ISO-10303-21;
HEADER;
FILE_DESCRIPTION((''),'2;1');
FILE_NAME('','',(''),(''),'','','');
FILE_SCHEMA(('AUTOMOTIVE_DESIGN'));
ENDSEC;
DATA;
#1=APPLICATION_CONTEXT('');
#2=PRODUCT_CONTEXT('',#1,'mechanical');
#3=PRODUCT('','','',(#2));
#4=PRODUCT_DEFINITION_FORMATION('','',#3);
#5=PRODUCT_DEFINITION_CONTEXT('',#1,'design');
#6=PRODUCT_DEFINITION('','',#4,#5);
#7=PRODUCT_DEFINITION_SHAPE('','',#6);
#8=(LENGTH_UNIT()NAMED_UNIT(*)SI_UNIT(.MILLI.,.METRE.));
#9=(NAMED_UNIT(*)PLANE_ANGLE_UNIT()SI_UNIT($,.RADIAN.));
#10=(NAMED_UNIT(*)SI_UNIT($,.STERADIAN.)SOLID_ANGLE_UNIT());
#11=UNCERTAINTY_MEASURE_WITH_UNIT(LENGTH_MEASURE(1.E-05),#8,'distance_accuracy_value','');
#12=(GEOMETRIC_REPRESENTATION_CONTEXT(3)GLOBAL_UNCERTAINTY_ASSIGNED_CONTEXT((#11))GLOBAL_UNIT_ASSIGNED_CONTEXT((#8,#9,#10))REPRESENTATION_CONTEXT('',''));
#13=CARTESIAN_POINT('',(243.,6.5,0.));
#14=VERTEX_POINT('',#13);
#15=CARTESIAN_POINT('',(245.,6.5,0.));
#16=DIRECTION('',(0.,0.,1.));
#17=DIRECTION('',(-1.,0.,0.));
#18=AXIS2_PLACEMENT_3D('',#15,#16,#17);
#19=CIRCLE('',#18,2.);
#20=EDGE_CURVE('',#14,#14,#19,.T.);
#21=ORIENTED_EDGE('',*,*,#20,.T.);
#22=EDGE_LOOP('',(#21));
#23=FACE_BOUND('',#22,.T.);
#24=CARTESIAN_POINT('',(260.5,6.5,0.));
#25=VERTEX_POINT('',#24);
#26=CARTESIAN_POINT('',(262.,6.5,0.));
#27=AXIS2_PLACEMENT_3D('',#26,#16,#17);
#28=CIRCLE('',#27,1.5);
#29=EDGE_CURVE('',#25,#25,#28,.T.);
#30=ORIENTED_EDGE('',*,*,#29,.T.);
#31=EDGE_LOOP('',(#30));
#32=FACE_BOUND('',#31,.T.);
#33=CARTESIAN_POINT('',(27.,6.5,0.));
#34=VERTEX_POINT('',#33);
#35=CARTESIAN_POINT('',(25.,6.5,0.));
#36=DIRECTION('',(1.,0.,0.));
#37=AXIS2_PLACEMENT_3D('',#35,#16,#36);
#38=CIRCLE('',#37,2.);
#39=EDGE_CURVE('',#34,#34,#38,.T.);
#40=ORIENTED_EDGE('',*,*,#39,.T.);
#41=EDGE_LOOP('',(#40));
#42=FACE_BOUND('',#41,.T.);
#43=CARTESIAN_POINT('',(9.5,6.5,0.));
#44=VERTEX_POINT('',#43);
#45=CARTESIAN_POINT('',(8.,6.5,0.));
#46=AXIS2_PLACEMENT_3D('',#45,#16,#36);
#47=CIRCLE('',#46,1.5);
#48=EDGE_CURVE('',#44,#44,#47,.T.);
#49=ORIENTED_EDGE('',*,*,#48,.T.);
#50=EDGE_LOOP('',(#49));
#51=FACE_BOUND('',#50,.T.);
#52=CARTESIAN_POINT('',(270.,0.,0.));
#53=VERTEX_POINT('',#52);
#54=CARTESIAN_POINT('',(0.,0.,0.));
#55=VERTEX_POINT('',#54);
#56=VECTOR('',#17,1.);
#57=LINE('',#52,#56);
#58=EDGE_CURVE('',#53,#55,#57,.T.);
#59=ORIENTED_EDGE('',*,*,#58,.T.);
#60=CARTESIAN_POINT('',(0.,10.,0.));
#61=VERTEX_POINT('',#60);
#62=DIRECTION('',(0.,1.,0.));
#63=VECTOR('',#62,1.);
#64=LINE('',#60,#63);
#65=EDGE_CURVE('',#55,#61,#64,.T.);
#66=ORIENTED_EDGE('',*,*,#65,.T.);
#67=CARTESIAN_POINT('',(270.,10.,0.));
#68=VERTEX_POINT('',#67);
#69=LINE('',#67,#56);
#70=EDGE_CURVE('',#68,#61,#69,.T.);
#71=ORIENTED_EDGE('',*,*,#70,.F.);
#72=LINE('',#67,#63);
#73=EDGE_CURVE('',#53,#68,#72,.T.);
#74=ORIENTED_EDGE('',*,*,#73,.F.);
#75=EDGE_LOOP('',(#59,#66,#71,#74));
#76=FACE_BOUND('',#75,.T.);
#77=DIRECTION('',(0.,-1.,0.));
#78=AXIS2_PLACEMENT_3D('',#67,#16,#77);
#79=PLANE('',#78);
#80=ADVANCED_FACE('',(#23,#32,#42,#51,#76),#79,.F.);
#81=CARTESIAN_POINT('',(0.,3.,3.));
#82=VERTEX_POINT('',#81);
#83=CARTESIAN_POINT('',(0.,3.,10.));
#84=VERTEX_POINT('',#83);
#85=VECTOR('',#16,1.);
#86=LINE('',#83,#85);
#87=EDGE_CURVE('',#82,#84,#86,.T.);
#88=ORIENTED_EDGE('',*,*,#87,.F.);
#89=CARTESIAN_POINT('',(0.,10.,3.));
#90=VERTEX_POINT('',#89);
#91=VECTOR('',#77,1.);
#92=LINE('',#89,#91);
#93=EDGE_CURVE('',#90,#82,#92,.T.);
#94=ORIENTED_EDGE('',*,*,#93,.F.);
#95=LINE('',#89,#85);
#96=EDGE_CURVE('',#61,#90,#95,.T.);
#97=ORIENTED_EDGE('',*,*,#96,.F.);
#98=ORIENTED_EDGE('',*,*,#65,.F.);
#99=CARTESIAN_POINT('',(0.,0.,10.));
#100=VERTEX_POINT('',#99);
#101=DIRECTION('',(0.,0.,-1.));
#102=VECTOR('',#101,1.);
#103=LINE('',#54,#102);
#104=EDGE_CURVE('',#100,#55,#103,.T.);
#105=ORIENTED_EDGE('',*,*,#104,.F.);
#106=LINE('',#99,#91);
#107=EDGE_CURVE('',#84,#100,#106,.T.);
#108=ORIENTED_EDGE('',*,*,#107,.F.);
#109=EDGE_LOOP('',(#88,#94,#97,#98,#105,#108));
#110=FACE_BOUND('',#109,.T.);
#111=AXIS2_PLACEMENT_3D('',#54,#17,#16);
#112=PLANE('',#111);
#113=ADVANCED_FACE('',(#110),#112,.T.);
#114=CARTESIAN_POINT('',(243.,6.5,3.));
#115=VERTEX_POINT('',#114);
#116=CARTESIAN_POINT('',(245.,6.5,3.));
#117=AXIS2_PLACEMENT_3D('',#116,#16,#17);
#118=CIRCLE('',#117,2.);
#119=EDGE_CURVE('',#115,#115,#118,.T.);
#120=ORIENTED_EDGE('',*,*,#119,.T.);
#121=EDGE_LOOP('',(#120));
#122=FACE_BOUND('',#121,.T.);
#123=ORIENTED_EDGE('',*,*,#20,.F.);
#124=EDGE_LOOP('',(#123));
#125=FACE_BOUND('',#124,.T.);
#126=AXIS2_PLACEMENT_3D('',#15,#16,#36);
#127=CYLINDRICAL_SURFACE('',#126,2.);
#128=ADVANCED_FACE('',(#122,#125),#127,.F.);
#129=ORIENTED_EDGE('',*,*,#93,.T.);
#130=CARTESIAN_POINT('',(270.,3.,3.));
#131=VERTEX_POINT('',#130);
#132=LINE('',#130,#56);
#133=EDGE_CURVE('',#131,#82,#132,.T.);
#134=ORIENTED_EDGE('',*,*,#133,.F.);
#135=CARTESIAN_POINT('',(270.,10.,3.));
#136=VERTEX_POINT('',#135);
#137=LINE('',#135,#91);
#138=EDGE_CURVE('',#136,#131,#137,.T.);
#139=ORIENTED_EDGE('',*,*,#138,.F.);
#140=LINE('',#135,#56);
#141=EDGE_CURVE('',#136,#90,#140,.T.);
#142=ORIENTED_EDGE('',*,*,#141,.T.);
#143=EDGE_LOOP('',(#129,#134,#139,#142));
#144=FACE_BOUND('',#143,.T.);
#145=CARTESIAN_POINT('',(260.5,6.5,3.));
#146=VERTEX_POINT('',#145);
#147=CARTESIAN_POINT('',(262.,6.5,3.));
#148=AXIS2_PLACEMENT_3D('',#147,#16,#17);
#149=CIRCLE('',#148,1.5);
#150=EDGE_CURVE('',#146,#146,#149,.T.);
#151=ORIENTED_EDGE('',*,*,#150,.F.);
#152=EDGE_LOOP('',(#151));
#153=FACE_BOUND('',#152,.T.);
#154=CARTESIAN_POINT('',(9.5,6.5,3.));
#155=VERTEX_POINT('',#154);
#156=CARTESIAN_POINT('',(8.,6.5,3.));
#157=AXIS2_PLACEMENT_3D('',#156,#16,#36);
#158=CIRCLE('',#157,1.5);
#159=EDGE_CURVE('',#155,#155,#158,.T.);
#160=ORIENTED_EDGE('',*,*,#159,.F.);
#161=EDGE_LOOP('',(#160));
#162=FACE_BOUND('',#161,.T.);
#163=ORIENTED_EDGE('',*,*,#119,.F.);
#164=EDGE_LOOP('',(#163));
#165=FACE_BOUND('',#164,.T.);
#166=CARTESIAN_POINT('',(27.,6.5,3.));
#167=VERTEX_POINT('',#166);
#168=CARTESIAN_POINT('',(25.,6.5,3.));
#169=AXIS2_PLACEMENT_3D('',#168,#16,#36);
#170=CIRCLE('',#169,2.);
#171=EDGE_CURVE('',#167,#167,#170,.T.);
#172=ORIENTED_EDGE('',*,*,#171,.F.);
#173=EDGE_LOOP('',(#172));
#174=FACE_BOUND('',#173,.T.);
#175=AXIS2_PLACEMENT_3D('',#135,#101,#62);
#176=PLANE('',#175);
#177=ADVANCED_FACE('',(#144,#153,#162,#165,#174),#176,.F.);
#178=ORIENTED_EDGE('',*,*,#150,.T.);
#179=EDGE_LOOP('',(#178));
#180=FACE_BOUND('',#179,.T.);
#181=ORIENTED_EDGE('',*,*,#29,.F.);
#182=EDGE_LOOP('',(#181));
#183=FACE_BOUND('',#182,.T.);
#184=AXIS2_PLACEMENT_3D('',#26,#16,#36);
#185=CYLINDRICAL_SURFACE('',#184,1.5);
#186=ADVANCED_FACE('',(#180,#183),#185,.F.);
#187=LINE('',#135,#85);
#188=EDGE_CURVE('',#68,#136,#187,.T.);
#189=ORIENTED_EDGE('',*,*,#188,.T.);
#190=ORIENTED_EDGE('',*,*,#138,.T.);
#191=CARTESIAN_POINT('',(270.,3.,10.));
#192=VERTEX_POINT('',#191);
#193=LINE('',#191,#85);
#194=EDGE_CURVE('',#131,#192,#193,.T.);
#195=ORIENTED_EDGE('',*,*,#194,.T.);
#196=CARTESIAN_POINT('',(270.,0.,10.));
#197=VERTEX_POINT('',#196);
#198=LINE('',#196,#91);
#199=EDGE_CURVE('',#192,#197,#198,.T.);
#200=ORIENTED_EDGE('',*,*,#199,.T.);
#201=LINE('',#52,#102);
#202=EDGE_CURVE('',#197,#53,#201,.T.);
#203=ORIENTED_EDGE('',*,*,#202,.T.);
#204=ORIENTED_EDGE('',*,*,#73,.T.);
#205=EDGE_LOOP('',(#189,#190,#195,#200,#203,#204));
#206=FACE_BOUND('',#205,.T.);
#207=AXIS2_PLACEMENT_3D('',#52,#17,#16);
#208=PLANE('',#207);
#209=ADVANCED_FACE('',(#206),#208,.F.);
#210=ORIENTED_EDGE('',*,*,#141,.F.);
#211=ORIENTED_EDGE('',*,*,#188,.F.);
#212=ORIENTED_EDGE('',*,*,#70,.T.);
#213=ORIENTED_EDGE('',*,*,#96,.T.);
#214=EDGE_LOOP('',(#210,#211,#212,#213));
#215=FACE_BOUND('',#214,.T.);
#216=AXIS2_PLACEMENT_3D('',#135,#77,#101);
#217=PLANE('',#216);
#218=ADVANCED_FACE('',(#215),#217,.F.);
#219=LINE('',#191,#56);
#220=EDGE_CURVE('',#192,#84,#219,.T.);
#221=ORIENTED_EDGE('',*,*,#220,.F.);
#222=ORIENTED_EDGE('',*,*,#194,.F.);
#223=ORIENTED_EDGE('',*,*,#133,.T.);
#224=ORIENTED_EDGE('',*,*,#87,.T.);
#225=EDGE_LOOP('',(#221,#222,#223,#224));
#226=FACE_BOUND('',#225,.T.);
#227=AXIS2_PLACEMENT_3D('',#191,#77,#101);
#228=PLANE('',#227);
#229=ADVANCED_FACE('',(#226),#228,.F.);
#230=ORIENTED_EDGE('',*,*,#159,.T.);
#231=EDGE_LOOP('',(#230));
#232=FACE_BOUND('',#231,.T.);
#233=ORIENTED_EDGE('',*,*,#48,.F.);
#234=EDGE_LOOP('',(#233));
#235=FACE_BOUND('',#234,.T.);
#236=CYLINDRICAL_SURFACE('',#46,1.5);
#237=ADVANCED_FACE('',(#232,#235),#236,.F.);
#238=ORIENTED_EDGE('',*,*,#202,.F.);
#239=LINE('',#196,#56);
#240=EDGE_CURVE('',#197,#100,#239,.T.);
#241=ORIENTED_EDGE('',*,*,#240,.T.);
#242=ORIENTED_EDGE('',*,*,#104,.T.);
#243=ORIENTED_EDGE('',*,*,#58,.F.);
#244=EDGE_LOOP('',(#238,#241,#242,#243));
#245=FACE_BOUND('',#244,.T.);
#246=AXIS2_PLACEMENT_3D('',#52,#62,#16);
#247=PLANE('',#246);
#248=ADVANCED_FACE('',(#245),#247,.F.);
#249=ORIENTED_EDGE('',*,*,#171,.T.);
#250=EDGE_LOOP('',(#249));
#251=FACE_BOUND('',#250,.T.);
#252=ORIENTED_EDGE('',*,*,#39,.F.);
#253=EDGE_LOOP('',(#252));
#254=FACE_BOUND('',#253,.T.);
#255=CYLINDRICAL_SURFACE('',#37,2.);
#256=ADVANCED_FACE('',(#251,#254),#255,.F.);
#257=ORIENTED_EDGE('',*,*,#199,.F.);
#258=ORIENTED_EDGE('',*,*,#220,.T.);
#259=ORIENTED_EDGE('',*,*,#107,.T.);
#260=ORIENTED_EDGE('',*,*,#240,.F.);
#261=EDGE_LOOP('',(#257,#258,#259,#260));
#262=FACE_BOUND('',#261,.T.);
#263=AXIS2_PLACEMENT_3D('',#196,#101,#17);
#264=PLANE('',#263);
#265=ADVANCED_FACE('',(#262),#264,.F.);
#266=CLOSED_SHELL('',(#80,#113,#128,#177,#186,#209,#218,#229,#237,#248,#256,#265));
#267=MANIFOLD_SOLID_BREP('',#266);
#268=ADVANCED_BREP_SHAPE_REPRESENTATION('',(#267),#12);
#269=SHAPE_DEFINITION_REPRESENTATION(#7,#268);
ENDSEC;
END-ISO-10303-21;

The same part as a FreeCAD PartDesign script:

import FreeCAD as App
import Part
import Sketcher

V = App.Vector

doc = App.newDocument("Part")
body = doc.addObject("PartDesign::Body", "Body")

# Sketch on YZ plane
sketch1 = body.newObject("Sketcher::SketchObject", "Sketch")
sketch1.AttachmentSupport = (doc.getObject("YZ_Plane"), [""])
sketch1.MapMode = "FlatFace"
sketch1.addGeometry(Part.LineSegment(V(0, 10, 0), V(0, 0, 0)), False)
sketch1.addGeometry(Part.LineSegment(V(0, 0, 0), V(10, 0, 0)), False)
sketch1.addGeometry(Part.LineSegment(V(10, 0, 0), V(10, 3, 0)), False)
sketch1.addGeometry(Part.LineSegment(V(10, 3, 0), V(3, 3, 0)), False)
sketch1.addGeometry(Part.LineSegment(V(3, 3, 0), V(3, 10, 0)), False)
sketch1.addGeometry(Part.LineSegment(V(3, 10, 0), V(0, 10, 0)), False)
sketch1.addConstraint(Sketcher.Constraint("Coincident", 0, 2, 1, 1))
sketch1.addConstraint(Sketcher.Constraint("Coincident", 1, 2, 2, 1))
sketch1.addConstraint(Sketcher.Constraint("Coincident", 2, 2, 3, 1))
sketch1.addConstraint(Sketcher.Constraint("Coincident", 3, 2, 4, 1))
sketch1.addConstraint(Sketcher.Constraint("Coincident", 4, 2, 5, 1))
sketch1.addConstraint(Sketcher.Constraint("Coincident", 5, 2, 0, 1))
sketch1.addConstraint(Sketcher.Constraint("Vertical", 0))
sketch1.addConstraint(Sketcher.Constraint("Horizontal", 1))
sketch1.addConstraint(Sketcher.Constraint("Vertical", 2))
sketch1.addConstraint(Sketcher.Constraint("Horizontal", 3))
sketch1.addConstraint(Sketcher.Constraint("Vertical", 4))
sketch1.addConstraint(Sketcher.Constraint("Horizontal", 5))
sketch1.addConstraint(Sketcher.Constraint("Coincident", 0, 2, -1, 1))
sketch1.addConstraint(Sketcher.Constraint("Equal", 1, 0))
sketch1.addConstraint(Sketcher.Constraint("Equal", 5, 2))
sketch1.addConstraint(Sketcher.Constraint("DistanceX", 1, 1, 1, 2, 10.0))
sketch1.addConstraint(Sketcher.Constraint("DistanceX", 3, 2, 3, 1, 7.0))
pad1 = body.newObject("PartDesign::Pad", "Pad")
pad1.Profile = sketch1
pad1.Length = 270

# Sketch on XY plane
sketch2 = body.newObject("Sketcher::SketchObject", "Sketch001")
sketch2.AttachmentSupport = (doc.getObject("XY_Plane"), [""])
sketch2.MapMode = "FlatFace"
sketch2.AttachmentOffset = App.Placement(V(0, 0, 3), App.Rotation())
sketch2.addGeometry(Part.Circle(V(25, 6.5, 0), V(0, 0, 1), 2), False)
sketch2.addGeometry(Part.Circle(V(245, 6.5, 0), V(0, 0, 1), 2), False)
sketch2.addConstraint(Sketcher.Constraint("Equal", 0, 1))
sketch2.addConstraint(Sketcher.Constraint("Horizontal", 0, 3, 1, 3))
sketch2.addConstraint(Sketcher.Constraint("Diameter", 0, 4.0))
sketch2.addConstraint(Sketcher.Constraint("DistanceX", -1, 1, 0, 3, 25.0))
sketch2.addConstraint(Sketcher.Constraint("DistanceX", -1, 1, 1, 3, 245.0))
sketch2.addConstraint(Sketcher.Constraint("DistanceY", -1, 1, 0, 3, 6.5))
pocket1 = body.newObject("PartDesign::Pocket", "Pocket")
pocket1.Profile = sketch2
pocket1.Type = "ThroughAll"

# Sketch on XY plane
sketch3 = body.newObject("Sketcher::SketchObject", "Sketch002")
sketch3.AttachmentSupport = (doc.getObject("XY_Plane"), [""])
sketch3.MapMode = "FlatFace"
sketch3.AttachmentOffset = App.Placement(V(0, 0, 3), App.Rotation())
sketch3.addGeometry(Part.Circle(V(8, 6.5, 0), V(0, 0, 1), 1.5), False)
sketch3.addGeometry(Part.Circle(V(262, 6.5, 0), V(0, 0, 1), 1.5), False)
sketch3.addConstraint(Sketcher.Constraint("Equal", 0, 1))
sketch3.addConstraint(Sketcher.Constraint("Horizontal", 0, 3, 1, 3))
sketch3.addConstraint(Sketcher.Constraint("Diameter", 0, 3.0))
sketch3.addConstraint(Sketcher.Constraint("DistanceX", -1, 1, 0, 3, 8.0))
sketch3.addConstraint(Sketcher.Constraint("DistanceX", -1, 1, 1, 3, 262.0))
sketch3.addConstraint(Sketcher.Constraint("DistanceY", -1, 1, 0, 3, 6.5))
pocket2 = body.newObject("PartDesign::Pocket", "Pocket001")
pocket2.Profile = sketch3
pocket2.Type = "ThroughAll"

doc.recompute()
